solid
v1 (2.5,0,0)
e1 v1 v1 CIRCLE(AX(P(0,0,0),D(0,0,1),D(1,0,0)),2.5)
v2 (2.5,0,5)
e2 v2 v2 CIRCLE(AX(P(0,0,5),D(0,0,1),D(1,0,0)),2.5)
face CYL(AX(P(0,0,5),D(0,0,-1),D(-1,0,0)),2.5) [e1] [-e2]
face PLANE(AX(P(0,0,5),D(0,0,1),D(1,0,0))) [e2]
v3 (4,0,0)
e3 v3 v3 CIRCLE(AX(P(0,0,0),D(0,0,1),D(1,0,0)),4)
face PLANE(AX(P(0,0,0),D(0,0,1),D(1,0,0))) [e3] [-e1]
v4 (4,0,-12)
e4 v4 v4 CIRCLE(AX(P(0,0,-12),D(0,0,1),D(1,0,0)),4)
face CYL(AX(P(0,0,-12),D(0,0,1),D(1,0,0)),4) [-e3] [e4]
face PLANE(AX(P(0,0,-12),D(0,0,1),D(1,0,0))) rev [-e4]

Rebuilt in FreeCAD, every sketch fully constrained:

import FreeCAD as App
import Part
import Sketcher
from FreeCAD import Vector

doc = App.newDocument("Part")
body = doc.addObject("PartDesign::Body", "Body")

# Sketch on XY plane
sketch1 = body.newObject("Sketcher::SketchObject", "Sketch")
sketch1.AttachmentSupport = (doc.getObject("XY_Plane"), [""])
sketch1.MapMode = "FlatFace"
sketch1.addGeometry(Part.Circle(Vector(0, 0, 0), Vector(0, 0, 1), 2.5), False)
sketch1.addConstraint([
    Sketcher.Constraint("Coincident", 0, 3, -1, 1),
    Sketcher.Constraint("Diameter", 0, 5.0),
])
pad1 = body.newObject("PartDesign::Pad", "Pad")
pad1.Profile = sketch1
pad1.Length = 5

# Sketch on XY plane
sketch2 = body.newObject("Sketcher::SketchObject", "Sketch001")
sketch2.AttachmentSupport = (doc.getObject("XY_Plane"), [""])
sketch2.MapMode = "FlatFace"
sketch2.addGeometry(Part.Circle(Vector(0, 0, 0), Vector(0, 0, 1), 4), False)
sketch2.addConstraint([
    Sketcher.Constraint("Coincident", 0, 3, -1, 1),
    Sketcher.Constraint("Diameter", 0, 8.0),
])
pad2 = body.newObject("PartDesign::Pad", "Pad001")
pad2.Profile = sketch2
pad2.Length = 12
pad2.Reversed = True

doc.recompute()
